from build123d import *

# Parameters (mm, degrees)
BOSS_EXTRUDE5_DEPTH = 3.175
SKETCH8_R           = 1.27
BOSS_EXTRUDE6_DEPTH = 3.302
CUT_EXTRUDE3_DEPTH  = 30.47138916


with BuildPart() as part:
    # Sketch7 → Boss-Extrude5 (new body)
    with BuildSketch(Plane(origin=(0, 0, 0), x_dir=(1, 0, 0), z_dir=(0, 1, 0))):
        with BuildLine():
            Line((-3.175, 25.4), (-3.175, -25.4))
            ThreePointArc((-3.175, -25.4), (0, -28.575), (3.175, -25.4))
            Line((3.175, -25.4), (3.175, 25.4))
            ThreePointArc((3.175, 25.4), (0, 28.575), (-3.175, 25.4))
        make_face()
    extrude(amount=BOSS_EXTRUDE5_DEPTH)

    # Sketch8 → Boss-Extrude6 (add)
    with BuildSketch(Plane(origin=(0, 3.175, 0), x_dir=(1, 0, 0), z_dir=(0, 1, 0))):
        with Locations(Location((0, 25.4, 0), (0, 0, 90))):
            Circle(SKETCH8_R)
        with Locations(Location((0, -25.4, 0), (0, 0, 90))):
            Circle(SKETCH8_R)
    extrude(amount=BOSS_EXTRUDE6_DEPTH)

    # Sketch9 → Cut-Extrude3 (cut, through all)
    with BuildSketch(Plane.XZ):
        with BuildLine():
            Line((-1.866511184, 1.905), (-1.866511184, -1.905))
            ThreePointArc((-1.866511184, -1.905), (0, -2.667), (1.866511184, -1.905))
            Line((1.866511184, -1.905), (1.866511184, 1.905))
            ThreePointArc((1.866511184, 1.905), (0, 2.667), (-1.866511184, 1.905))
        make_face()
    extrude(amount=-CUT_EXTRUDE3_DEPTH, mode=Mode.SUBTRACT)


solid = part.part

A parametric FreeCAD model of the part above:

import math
import FreeCAD as App
import Part
import Sketcher

V = App.Vector
Q = App.Units.Quantity

doc = App.newDocument("Part")
body = doc.addObject("PartDesign::Body", "Body")

# Sketch on XZ plane
sketch1 = doc.addObject("Sketcher::SketchObject", "Sketch")
body.addObject(sketch1)
sketch1.AttachmentSupport = (doc.XZ_Plane, [""])
sketch1.MapMode = "FlatFace"
sketch1.addGeometry(Part.LineSegment(V(-3.175, -25.4, 0), V(-3.175, 25.4, 0)), False)
sketch1.addGeometry(Part.ArcOfCircle(Part.Circle(V(0, 25.4, 0), V(0, 0, 1), 3.175), math.radians(0), math.radians(180)), False)
sketch1.addGeometry(Part.LineSegment(V(3.175, 25.4, 0), V(3.175, -25.4, 0)), False)
sketch1.addGeometry(Part.ArcOfCircle(Part.Circle(V(0, -25.4, 0), V(0, 0, 1), 3.175), math.radians(180), math.radians(360)), False)
sketch1.addConstraint(Sketcher.Constraint("Tangent", 0, 2, 1, 2))
sketch1.addConstraint(Sketcher.Constraint("Tangent", 1, 1, 2, 1))
sketch1.addConstraint(Sketcher.Constraint("Tangent", 2, 2, 3, 2))
sketch1.addConstraint(Sketcher.Constraint("Tangent", 3, 1, 0, 1))
sketch1.addConstraint(Sketcher.Constraint("Vertical", 0))
sketch1.addConstraint(Sketcher.Constraint("Vertical", 2))
sketch1.addConstraint(Sketcher.Constraint("Symmetric", 1, 3, 3, 3, -1, 1))
sketch1.addConstraint(Sketcher.Constraint("DistanceY", 0, 1, 0, 2, Q("2 in")))
sketch1.addConstraint(Sketcher.Constraint("Radius", 1, Q("0.125 in")))
pad1 = doc.addObject("PartDesign::Pad", "Pad")
body.addObject(pad1)
pad1.Profile = sketch1
pad1.Length = Q("0.125 in")
pad1.Reversed = True

# Sketch on XZ plane
sketch2 = doc.addObject("Sketcher::SketchObject", "Sketch001")
body.addObject(sketch2)
sketch2.AttachmentSupport = (doc.XZ_Plane, [""])
sketch2.MapMode = "FlatFace"
sketch2.AttachmentOffset = App.Placement(V(0, 0, -0.125 * 25.4), App.Rotation())
sketch2.addGeometry(Part.Circle(V(0, -25.4, 0), V(0, 0, 1), 1.27), False)
sketch2.addGeometry(Part.Circle(V(0, 25.4, 0), V(0, 0, 1), 1.27), False)
sketch2.addConstraint(Sketcher.Constraint("Equal", 0, 1))
sketch2.addConstraint(Sketcher.Constraint("Symmetric", 0, 3, 1, 3, -1, 1))
sketch2.addConstraint(Sketcher.Constraint("PointOnObject", 0, 3, -2))
sketch2.addConstraint(Sketcher.Constraint("Diameter", 0, Q("0.1 in")))
sketch2.addConstraint(Sketcher.Constraint("DistanceY", 0, 3, -1, 1, Q("1 in")))
pad2 = doc.addObject("PartDesign::Pad", "Pad001")
body.addObject(pad2)
pad2.Profile = sketch2
pad2.Length = Q("0.13 in")
pad2.Reversed = True

# Sketch on XZ plane
sketch3 = doc.addObject("Sketcher::SketchObject", "Sketch002")
body.addObject(sketch3)
sketch3.AttachmentSupport = (doc.XZ_Plane, [""])
sketch3.MapMode = "FlatFace"
sketch3.addGeometry(Part.LineSegment(V(-1.866511, 1.905, 0), V(-1.866511, -1.905, 0)), False)
sketch3.addGeometry(Part.ArcOfCircle(Part.Circle(V(0, 0, 0), V(0, 0, 1), 2.667), math.radians(-134.415309), math.radians(-45.584691)), False)
sketch3.addGeometry(Part.LineSegment(V(1.866511, -1.905, 0), V(1.866511, 1.905, 0)), False)
sketch3.addGeometry(Part.ArcOfCircle(Part.Circle(V(0, 0, 0), V(0, 0, 1), 2.667), math.radians(45.584691), math.radians(134.415309)), False)
sketch3.addConstraint(Sketcher.Constraint("Coincident", 0, 2, 1, 1))
sketch3.addConstraint(Sketcher.Constraint("Coincident", 1, 2, 2, 1))
sketch3.addConstraint(Sketcher.Constraint("Coincident", 2, 2, 3, 1))
sketch3.addConstraint(Sketcher.Constraint("Coincident", 3, 2, 0, 1))
sketch3.addConstraint(Sketcher.Constraint("Vertical", 0))
sketch3.addConstraint(Sketcher.Constraint("Vertical", 2))
sketch3.addConstraint(Sketcher.Constraint("Coincident", 1, 3, -1, 1))
sketch3.addConstraint(Sketcher.Constraint("Coincident", 3, 3, -1, 1))
sketch3.addConstraint(Sketcher.Constraint("Equal", 1, 3))
sketch3.addConstraint(Sketcher.Constraint("Horizontal", 0, 2, 1, 2))
sketch3.addConstraint(Sketcher.Constraint("Radius", 1, Q("0.105 in")))
sketch3.addConstraint(Sketcher.Constraint("DistanceY", 0, 2, 0, 1, Q("0.15 in")))
pocket1 = doc.addObject("PartDesign::Pocket", "Pocket")
body.addObject(pocket1)
pocket1.Profile = sketch3
pocket1.Type = "ThroughAll"

doc.recompute()
